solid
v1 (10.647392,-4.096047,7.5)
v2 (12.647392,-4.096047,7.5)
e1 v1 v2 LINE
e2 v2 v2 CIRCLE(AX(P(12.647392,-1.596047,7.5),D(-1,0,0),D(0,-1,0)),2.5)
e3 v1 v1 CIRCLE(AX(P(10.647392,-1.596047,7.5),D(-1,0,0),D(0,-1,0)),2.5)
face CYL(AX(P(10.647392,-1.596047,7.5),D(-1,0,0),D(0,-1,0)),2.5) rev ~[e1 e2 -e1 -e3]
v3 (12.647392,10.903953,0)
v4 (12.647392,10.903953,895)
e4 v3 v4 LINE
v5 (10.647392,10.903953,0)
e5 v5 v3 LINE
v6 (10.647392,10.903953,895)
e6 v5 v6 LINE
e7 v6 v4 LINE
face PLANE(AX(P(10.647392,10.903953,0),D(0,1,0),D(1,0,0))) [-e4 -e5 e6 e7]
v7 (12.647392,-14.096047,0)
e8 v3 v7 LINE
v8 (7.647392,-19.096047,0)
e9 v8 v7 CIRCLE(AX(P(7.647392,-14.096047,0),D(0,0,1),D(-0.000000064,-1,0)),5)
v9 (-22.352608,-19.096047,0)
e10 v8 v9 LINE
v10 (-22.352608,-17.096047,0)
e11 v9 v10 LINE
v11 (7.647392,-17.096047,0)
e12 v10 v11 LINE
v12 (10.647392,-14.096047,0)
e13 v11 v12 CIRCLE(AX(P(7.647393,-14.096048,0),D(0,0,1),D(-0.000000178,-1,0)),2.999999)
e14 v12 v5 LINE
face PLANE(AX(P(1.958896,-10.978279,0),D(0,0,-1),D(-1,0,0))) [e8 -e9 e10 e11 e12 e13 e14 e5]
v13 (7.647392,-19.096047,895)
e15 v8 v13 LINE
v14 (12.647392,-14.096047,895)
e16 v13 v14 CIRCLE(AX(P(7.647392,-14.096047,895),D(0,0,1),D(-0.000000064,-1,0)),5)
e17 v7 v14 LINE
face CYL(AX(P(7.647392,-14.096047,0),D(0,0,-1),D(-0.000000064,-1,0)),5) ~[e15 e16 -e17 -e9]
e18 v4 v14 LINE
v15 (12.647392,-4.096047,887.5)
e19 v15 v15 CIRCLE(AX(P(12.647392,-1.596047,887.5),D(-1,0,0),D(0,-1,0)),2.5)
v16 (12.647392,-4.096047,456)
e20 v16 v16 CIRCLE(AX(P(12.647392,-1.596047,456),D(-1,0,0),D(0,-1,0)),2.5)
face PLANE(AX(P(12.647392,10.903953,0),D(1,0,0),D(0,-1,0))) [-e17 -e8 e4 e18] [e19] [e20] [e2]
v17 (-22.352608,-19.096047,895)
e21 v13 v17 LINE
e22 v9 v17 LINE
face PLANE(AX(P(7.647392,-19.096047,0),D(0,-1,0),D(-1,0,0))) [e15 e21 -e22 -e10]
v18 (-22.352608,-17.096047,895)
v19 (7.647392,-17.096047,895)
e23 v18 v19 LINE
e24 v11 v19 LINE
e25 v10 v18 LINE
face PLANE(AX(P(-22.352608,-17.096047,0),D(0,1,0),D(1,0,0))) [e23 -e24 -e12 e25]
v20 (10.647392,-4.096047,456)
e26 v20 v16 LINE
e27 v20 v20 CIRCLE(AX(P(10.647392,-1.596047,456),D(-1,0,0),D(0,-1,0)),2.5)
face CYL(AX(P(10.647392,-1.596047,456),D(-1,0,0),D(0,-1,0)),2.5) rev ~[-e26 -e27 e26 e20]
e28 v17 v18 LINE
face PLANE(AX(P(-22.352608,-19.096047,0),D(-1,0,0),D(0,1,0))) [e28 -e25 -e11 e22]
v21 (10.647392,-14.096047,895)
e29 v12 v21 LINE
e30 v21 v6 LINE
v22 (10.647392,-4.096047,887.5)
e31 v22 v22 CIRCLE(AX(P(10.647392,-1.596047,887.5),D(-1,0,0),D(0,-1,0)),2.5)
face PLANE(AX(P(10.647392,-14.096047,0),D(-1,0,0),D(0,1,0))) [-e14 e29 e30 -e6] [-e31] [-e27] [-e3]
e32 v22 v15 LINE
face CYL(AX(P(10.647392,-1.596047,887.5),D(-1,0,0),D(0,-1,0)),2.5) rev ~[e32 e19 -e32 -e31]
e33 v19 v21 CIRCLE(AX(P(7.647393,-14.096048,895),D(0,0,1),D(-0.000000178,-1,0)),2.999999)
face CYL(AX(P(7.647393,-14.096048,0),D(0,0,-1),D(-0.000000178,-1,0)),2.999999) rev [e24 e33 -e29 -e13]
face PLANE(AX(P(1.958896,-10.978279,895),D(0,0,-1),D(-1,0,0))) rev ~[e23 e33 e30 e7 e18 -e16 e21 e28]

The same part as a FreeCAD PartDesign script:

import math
import FreeCAD as App
import Part
import Sketcher
from FreeCAD import Vector

doc = App.newDocument("Part")
body = doc.addObject("PartDesign::Body", "Body")

sketch1 = body.newObject("Sketcher::SketchObject", "Sketch")
sketch1.AttachmentSupport = (doc.getObject("XY_Plane"), [""])
sketch1.MapMode = "FlatFace"
sketch1.addGeometry(Part.LineSegment(Vector(12.6, 10.9, 0), Vector(10.6, 10.9, 0)), False)
sketch1.addGeometry(Part.LineSegment(Vector(10.6, 10.9, 0), Vector(10.6, -14.1, 0)), False)
sketch1.addGeometry(Part.ArcOfCircle(Part.Circle(Vector(7.6, -14.1, 0), Vector(0, 0, 1), 3), math.radians(-90), math.radians(0)), False)
sketch1.addGeometry(Part.LineSegment(Vector(7.6, -17.1, 0), Vector(-22.4, -17.1, 0)), False)
sketch1.addGeometry(Part.LineSegment(Vector(-22.4, -17.1, 0), Vector(-22.4, -19.1, 0)), False)
sketch1.addGeometry(Part.LineSegment(Vector(-22.4, -19.1, 0), Vector(7.6, -19.1, 0)), False)
sketch1.addGeometry(Part.ArcOfCircle(Part.Circle(Vector(7.6, -14.1, 0), Vector(0, 0, 1), 5), math.radians(-90), math.radians(0)), False)
sketch1.addGeometry(Part.LineSegment(Vector(12.6, -14.1, 0), Vector(12.6, 10.9, 0)), False)
sketch1.addConstraint(Sketcher.Constraint("Coincident", 0, 2, 1, 1))
sketch1.addConstraint(Sketcher.Constraint("Tangent", 1, 2, 2, 2))
sketch1.addConstraint(Sketcher.Constraint("Tangent", 2, 1, 3, 1))
sketch1.addConstraint(Sketcher.Constraint("Coincident", 3, 2, 4, 1))
sketch1.addConstraint(Sketcher.Constraint("Coincident", 4, 2, 5, 1))
sketch1.addConstraint(Sketcher.Constraint("Tangent", 5, 2, 6, 1))
sketch1.addConstraint(Sketcher.Constraint("Tangent", 6, 2, 7, 1))
sketch1.addConstraint(Sketcher.Constraint("Coincident", 7, 2, 0, 1))
sketch1.addConstraint(Sketcher.Constraint("Horizontal", 0))
sketch1.addConstraint(Sketcher.Constraint("Vertical", 1))
sketch1.addConstraint(Sketcher.Constraint("Horizontal", 3))
sketch1.addConstraint(Sketcher.Constraint("Vertical", 4))
sketch1.addConstraint(Sketcher.Constraint("Horizontal", 5))
sketch1.addConstraint(Sketcher.Constraint("Vertical", 7))
sketch1.addConstraint(Sketcher.Constraint("Coincident", 6, 3, 2, 3))
sketch1.addConstraint(Sketcher.Constraint("Radius", 2, 2.999999))
sketch1.addConstraint(Sketcher.Constraint("Radius", 6, 5.0))
sketch1.addConstraint(Sketcher.Constraint("DistanceX", 3, 2, 3, 1, 30.0))
sketch1.addConstraint(Sketcher.Constraint("DistanceY", 1, 2, 1, 1, 25.0))
sketch1.addConstraint(Sketcher.Constraint("DistanceX", 3, 2, -1, 1, 22.352608))
sketch1.addConstraint(Sketcher.Constraint("DistanceY", 2, 3, -1, 1, 14.096048))
pad1 = body.newObject("PartDesign::Pad", "Pad")
pad1.Profile = sketch1
pad1.Length = 895

sketch2 = body.newObject("Sketcher::SketchObject", "Sketch001")
sketch2.AttachmentSupport = (doc.getObject("YZ_Plane"), [""])
sketch2.MapMode = "FlatFace"
sketch2.AttachmentOffset = App.Placement(Vector(0, 0, 10.647392), App.Rotation())
sketch2.addGeometry(Part.Circle(Vector(-1.6, 7.5, 0), Vector(0, 0, 1), 2.5), False)
sketch2.addGeometry(Part.Circle(Vector(-1.6, 456, 0), Vector(0, 0, 1), 2.5), False)
sketch2.addGeometry(Part.Circle(Vector(-1.6, 887.5, 0), Vector(0, 0, 1), 2.5), False)
sketch2.addConstraint(Sketcher.Constraint("Equal", 0, 1))
sketch2.addConstraint(Sketcher.Constraint("Equal", 1, 2))
sketch2.addConstraint(Sketcher.Constraint("Vertical", 0, 3, 1, 3))
sketch2.addConstraint(Sketcher.Constraint("Vertical", 1, 3, 2, 3))
sketch2.addConstraint(Sketcher.Constraint("Diameter", 0, 5.0))
sketch2.addConstraint(Sketcher.Constraint("DistanceY", -1, 1, 1, 3, 456.0))
sketch2.addConstraint(Sketcher.Constraint("DistanceY", 0, 3, 2, 3, 880.0))
sketch2.addConstraint(Sketcher.Constraint("DistanceY", -1, 1, 0, 3, 7.5))
sketch2.addConstraint(Sketcher.Constraint("DistanceX", 0, 3, -1, 1, 1.596047))
pocket1 = body.newObject("PartDesign::Pocket", "Pocket")
pocket1.Profile = sketch2
pocket1.Length = 5
pocket1.Reversed = True

doc.recompute()
